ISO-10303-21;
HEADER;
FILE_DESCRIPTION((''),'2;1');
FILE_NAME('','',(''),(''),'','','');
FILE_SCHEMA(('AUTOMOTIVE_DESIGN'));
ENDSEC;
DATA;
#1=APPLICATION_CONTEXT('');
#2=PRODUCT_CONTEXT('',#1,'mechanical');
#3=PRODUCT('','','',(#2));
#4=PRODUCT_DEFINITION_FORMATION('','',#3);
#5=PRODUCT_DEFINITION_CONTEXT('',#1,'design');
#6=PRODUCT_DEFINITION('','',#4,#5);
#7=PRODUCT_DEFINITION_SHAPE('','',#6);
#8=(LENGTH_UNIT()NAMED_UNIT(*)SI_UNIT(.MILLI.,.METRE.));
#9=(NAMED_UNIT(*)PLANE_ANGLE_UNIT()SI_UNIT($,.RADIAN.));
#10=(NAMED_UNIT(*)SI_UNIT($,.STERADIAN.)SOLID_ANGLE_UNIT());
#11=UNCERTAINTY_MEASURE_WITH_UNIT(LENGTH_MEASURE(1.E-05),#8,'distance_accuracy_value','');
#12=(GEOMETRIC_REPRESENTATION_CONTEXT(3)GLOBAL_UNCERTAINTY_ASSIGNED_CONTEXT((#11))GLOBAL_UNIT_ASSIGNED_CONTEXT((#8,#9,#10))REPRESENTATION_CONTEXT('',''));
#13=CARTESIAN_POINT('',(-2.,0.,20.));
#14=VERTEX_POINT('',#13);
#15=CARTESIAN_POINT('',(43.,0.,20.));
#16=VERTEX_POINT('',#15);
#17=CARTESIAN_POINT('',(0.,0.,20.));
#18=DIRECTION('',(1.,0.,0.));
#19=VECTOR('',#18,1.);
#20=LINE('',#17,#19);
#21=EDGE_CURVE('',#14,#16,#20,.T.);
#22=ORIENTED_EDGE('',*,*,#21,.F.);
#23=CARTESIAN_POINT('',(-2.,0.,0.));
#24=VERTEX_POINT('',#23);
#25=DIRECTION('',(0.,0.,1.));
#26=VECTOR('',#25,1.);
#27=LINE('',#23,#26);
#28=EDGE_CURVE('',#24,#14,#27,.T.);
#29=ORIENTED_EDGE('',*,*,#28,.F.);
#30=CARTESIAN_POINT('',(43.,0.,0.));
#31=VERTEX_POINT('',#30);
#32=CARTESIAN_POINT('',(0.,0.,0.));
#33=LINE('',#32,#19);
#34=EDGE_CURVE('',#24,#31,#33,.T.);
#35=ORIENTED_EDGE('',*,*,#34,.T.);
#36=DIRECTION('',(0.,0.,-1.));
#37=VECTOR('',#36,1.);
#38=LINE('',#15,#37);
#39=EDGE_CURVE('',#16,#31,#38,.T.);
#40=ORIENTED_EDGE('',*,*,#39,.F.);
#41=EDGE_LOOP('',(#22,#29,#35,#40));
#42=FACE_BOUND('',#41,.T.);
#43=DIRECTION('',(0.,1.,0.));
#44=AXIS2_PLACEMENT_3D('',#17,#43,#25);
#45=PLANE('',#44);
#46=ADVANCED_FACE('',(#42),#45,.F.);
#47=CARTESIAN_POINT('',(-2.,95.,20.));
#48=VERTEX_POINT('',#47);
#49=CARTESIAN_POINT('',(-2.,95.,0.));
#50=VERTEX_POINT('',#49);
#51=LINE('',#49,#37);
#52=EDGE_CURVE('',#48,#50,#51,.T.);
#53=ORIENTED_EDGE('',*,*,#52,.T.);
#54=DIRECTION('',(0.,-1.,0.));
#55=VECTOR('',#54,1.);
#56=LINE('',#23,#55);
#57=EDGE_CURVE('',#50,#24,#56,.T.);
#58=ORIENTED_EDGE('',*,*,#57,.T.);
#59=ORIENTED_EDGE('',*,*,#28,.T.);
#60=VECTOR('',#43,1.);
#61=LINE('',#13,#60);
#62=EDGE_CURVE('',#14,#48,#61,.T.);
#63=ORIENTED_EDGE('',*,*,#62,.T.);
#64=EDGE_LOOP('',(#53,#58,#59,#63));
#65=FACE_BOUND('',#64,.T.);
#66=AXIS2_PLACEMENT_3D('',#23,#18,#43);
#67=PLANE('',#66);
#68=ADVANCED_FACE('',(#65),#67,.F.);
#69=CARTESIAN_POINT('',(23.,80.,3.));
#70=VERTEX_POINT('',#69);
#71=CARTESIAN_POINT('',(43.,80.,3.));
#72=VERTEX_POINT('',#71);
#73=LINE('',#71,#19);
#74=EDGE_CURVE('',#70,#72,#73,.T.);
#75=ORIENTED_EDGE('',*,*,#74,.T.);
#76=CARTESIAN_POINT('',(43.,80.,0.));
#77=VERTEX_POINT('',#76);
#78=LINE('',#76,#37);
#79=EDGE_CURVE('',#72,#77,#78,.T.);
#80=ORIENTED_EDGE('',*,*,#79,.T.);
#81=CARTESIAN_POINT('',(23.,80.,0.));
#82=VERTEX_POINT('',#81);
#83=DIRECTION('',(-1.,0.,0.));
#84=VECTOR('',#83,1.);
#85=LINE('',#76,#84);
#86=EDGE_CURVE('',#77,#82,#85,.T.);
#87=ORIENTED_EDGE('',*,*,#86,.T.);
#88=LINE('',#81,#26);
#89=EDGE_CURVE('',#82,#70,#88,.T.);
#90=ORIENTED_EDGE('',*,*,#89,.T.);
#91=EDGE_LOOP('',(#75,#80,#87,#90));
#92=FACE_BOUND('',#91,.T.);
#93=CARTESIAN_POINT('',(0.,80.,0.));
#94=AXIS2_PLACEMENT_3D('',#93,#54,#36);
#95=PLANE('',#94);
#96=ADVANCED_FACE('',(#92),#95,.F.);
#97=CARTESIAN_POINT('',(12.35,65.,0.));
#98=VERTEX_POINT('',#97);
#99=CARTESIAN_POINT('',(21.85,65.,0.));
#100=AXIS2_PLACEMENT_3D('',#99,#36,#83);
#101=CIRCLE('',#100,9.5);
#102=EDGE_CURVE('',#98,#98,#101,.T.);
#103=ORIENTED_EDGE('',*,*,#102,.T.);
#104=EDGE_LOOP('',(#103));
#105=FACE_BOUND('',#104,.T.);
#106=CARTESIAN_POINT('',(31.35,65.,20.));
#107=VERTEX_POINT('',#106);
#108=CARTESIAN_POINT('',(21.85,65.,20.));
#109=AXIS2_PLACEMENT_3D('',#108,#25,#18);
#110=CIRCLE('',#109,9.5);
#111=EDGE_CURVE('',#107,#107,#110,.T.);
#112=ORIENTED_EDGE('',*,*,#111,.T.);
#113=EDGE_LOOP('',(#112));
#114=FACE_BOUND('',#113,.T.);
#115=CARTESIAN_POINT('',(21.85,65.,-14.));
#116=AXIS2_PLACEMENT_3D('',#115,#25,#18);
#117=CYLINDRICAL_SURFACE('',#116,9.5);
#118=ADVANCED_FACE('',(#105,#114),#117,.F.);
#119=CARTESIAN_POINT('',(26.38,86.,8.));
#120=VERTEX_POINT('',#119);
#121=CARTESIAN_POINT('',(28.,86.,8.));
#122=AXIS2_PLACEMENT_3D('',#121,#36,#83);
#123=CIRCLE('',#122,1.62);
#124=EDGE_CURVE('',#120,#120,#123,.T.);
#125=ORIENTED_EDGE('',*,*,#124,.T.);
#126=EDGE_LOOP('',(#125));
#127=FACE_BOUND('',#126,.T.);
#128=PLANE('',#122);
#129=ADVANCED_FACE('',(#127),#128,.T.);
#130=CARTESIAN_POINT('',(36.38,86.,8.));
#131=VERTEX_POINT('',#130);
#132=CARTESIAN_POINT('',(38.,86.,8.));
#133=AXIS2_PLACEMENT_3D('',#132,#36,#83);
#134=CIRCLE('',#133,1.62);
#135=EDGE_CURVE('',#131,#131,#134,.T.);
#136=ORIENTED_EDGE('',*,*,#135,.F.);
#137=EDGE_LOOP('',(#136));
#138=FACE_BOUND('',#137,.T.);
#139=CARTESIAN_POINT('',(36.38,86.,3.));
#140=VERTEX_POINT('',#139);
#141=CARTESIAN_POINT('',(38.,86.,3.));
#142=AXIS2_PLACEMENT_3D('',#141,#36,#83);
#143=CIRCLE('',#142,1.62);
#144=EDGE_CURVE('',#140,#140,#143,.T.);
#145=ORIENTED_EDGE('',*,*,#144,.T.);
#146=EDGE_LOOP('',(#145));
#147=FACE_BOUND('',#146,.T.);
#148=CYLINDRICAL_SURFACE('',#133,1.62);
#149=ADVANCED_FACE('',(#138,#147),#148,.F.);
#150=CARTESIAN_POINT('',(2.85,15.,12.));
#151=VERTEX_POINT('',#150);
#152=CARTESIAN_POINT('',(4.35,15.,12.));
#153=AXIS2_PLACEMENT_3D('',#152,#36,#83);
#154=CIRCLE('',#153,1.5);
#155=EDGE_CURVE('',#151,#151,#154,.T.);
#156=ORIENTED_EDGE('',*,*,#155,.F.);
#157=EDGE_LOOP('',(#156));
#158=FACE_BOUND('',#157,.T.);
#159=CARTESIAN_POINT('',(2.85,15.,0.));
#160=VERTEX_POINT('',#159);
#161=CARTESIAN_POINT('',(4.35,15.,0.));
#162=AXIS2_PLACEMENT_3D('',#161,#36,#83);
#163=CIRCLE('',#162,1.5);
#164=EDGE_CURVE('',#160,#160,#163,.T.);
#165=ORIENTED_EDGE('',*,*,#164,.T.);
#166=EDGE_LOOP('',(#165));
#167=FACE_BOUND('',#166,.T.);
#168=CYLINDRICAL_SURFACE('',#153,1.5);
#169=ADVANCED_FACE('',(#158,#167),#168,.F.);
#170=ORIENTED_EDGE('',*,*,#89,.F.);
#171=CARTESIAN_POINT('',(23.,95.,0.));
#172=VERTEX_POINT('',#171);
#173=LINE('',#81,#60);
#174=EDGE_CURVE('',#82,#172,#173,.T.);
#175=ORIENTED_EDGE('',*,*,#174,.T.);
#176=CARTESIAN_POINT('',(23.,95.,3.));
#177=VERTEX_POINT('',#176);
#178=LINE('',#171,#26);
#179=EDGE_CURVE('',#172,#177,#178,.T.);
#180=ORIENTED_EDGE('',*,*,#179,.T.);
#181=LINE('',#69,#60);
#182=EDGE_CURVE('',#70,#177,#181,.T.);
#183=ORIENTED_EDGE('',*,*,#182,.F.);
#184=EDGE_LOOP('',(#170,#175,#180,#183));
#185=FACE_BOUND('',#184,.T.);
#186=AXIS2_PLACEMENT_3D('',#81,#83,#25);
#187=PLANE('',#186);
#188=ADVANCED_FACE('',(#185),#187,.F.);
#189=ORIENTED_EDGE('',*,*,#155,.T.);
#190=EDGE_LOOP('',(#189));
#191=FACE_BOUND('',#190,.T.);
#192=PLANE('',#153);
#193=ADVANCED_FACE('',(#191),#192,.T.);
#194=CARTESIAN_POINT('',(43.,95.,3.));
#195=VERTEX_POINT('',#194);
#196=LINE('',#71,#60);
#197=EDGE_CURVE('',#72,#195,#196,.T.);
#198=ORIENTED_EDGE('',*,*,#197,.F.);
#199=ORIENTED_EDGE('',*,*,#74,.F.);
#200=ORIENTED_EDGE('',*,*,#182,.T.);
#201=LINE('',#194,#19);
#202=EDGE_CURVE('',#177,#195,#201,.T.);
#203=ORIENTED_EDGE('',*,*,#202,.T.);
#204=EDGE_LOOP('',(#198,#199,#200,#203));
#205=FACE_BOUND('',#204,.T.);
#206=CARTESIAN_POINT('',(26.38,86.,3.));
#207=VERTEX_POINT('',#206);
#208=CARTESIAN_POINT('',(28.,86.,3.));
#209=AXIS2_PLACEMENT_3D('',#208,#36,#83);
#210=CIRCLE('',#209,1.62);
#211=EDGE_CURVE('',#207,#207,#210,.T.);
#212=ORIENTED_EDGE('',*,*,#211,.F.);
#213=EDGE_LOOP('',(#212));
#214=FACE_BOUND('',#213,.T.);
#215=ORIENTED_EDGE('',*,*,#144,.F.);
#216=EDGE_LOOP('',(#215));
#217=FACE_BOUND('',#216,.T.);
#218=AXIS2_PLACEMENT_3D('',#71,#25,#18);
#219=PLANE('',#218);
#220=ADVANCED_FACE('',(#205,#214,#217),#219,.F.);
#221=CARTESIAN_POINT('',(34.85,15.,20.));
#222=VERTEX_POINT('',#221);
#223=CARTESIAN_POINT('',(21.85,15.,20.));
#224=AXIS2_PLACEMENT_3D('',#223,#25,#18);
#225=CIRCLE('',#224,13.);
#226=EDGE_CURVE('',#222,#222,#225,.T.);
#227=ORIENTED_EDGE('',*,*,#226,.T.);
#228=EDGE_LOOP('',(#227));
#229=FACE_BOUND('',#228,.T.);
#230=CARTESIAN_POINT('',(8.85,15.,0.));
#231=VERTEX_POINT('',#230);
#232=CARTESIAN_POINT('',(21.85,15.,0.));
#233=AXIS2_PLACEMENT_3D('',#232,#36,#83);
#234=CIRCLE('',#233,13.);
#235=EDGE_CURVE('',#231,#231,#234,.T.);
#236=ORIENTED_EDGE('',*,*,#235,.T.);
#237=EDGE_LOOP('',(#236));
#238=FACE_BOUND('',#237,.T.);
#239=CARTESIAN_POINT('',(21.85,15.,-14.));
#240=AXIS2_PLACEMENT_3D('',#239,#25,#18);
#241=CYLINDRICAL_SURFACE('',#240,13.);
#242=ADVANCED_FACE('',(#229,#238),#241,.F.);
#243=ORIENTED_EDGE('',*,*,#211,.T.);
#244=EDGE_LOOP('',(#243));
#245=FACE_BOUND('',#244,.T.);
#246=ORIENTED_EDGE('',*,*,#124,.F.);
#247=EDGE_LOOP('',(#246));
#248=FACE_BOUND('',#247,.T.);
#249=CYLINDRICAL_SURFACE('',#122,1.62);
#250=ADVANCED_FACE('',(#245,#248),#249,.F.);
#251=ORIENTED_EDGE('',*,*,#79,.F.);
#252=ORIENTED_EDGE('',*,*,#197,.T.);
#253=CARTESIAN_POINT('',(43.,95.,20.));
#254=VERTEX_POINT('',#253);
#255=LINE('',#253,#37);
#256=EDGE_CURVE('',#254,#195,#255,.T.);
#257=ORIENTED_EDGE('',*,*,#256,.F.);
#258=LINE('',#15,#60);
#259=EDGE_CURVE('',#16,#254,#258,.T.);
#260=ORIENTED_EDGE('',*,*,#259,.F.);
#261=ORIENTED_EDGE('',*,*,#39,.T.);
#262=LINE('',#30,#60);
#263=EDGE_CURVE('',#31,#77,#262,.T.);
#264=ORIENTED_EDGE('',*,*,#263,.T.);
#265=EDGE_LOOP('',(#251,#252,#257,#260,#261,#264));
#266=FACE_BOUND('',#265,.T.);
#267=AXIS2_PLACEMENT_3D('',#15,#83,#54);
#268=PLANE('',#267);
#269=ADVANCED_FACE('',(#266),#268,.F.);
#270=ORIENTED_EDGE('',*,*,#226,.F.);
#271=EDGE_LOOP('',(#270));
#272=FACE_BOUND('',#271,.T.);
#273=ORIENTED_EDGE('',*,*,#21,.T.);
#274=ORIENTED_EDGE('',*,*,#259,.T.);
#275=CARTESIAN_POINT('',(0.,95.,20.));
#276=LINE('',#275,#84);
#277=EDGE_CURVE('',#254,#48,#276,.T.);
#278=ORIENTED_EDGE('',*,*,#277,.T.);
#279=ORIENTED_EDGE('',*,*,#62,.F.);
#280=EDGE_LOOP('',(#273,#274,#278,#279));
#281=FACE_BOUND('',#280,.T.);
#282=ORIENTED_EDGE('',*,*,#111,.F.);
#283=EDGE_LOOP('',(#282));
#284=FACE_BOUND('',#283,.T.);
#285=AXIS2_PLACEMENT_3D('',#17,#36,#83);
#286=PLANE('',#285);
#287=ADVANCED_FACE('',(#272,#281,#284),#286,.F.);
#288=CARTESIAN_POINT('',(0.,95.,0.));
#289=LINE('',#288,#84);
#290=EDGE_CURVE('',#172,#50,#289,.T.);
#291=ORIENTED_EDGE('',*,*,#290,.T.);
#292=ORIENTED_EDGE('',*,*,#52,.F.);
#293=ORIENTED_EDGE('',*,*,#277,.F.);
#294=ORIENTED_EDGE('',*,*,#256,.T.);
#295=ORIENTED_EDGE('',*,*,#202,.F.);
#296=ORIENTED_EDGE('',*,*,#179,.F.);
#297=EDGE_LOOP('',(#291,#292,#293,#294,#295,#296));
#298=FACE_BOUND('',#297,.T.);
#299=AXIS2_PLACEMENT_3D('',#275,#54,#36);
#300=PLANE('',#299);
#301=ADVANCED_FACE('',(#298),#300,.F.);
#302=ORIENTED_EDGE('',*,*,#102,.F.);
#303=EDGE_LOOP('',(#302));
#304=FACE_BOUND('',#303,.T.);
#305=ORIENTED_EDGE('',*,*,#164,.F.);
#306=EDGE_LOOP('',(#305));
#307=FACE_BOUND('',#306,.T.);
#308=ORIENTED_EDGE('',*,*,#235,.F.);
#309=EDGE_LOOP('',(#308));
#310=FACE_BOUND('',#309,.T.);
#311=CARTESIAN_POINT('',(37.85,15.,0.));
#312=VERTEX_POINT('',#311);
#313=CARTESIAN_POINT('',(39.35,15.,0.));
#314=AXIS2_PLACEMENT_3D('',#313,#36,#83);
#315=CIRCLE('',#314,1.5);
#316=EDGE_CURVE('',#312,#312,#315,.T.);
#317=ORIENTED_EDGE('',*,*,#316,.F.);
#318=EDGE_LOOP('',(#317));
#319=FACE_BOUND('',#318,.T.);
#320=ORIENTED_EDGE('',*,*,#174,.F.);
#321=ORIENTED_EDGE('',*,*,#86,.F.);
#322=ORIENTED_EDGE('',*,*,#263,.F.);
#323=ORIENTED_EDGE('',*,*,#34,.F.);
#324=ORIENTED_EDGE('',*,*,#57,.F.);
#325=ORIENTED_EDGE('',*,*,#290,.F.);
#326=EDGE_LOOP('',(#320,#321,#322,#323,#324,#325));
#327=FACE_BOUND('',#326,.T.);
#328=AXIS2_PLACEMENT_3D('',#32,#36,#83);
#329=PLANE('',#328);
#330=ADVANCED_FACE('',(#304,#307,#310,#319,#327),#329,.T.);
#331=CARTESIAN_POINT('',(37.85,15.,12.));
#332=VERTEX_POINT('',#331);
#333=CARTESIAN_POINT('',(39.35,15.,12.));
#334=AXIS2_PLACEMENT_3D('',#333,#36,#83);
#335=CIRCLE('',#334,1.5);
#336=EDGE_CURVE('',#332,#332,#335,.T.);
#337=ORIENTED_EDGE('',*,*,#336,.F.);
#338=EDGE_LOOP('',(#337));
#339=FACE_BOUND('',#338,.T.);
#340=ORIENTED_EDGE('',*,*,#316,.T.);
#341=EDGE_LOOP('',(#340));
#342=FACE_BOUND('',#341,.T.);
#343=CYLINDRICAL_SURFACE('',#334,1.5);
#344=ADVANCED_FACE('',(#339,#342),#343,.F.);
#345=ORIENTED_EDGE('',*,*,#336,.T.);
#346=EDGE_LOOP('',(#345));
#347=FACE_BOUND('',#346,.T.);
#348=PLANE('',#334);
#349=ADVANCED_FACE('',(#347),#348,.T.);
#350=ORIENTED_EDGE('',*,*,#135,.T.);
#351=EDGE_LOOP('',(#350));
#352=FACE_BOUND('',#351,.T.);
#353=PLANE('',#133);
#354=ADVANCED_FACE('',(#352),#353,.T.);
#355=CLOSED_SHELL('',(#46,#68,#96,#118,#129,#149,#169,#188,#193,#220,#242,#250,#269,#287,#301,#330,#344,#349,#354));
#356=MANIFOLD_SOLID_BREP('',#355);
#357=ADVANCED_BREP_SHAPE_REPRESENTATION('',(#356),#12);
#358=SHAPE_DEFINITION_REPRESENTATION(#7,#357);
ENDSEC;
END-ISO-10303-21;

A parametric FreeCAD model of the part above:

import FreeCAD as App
import Part
import Sketcher
Q = App.Units.Quantity


def add_polygon(sketch, points):
    """Adds a closed chain of lines whose ends are joined by coincident constraints."""
    first, n = sketch.GeometryCount, len(points)
    for a, b in zip(points, points[1:] + points[:1]):
        sketch.addGeometry(Part.LineSegment(App.Vector(*a, 0), App.Vector(*b, 0)), False)
    for i in range(n):
        sketch.addConstraint(Sketcher.Constraint("Coincident", first + i, 2, first + (i + 1) % n, 1))

doc = App.newDocument("Part")
params = doc.addObject("Spreadsheet::Sheet", "Params")
for row, (alias, value) in enumerate([
    ("sketch1_width", "43 mm"),
    ("sketch1_height", "95 mm"),
    ("pad1_length", "20 mm"),
    ("sketch2_diameter", "26 mm"),
    ("pocket1_length", "34 mm"),
    ("sketch3_diameter", "19 mm"),
    ("pocket2_length", "34 mm"),
    ("sketch4_width", "20 mm"),
    ("sketch4_height", "3 mm"),
    ("pocket3_length", "15 mm"),
    ("sketch5_diameter", "3.24 mm"),
    ("pocket4_length", "5 mm"),
    ("sketch6_diameter", "3.24 mm"),
    ("pocket5_length", "5 mm"),
    ("sketch7_diameter", "3 mm"),
    ("pocket6_length", "12 mm"),
    ("sketch8_width", "95 mm"),
    ("sketch8_height", "20 mm"),
    ("pad2_length", "2 mm"),
], start=1):
    params.set(f"A{row}", alias)
    params.set(f"B{row}", "=" + value)
    params.setAlias(f"B{row}", alias)

body = doc.addObject("PartDesign::Body", "Body")

# Sketch on XY plane
sketch1 = doc.addObject("Sketcher::SketchObject", "Sketch")
body.addObject(sketch1)
sketch1.AttachmentSupport = (doc.XY_Plane, [""])
sketch1.MapMode = "FlatFace"
add_polygon(sketch1, [(0, 95), (0, 0), (43, 0), (43, 95)])  # lines 0-3
sketch1.addConstraint([
    Sketcher.Constraint("Vertical", 0),
    Sketcher.Constraint("Horizontal", 1),
    Sketcher.Constraint("Vertical", 2),
    Sketcher.Constraint("Horizontal", 3),
    Sketcher.Constraint("Coincident", 0, 2, -1, 1),
    Sketcher.Constraint("DistanceX", 1, 1, 1, 2, Q("43 mm")),
    Sketcher.Constraint("DistanceY", 0, 2, 0, 1, Q("95 mm")),
])
sketch1.setExpression("Constraints[9]", "Params.sketch1_width")
sketch1.setExpression("Constraints[10]", "Params.sketch1_height")
pad1 = doc.addObject("PartDesign::Pad", "Pad")
body.addObject(pad1)
pad1.Profile = sketch1
pad1.setExpression("Length", "Params.pad1_length")

# Sketch on XY plane
sketch2 = doc.addObject("Sketcher::SketchObject", "Sketch001")
body.addObject(sketch2)
sketch2.AttachmentSupport = (doc.XY_Plane, [""])
sketch2.MapMode = "FlatFace"
sketch2.AttachmentOffset = App.Placement(App.Vector(0, 0, 20), App.Rotation())
sketch2.addGeometry(Part.Circle(App.Vector(22, 15, 0), App.Vector(0, 0, 1), 13), False)
sketch2.addConstraint([
    Sketcher.Constraint("Diameter", 0, Q("26 mm")),
    Sketcher.Constraint("DistanceY", -1, 1, 0, 3, Q("15 mm")),
    Sketcher.Constraint("DistanceX", -1, 1, 0, 3, Q("21.85 mm")),
])
sketch2.setExpression("Constraints[0]", "Params.sketch2_diameter")
pocket1 = doc.addObject("PartDesign::Pocket", "Pocket")
body.addObject(pocket1)
pocket1.Profile = sketch2
pocket1.setExpression("Length", "Params.pocket1_length")

# Sketch on XY plane
sketch3 = doc.addObject("Sketcher::SketchObject", "Sketch002")
body.addObject(sketch3)
sketch3.AttachmentSupport = (doc.XY_Plane, [""])
sketch3.MapMode = "FlatFace"
sketch3.AttachmentOffset = App.Placement(App.Vector(0, 0, 20), App.Rotation())
sketch3.addGeometry(Part.Circle(App.Vector(22, 65, 0), App.Vector(0, 0, 1), 10), False)
sketch3.addConstraint([
    Sketcher.Constraint("Diameter", 0, Q("19 mm")),
    Sketcher.Constraint("DistanceY", -1, 1, 0, 3, Q("65 mm")),
    Sketcher.Constraint("DistanceX", -1, 1, 0, 3, Q("21.85 mm")),
])
sketch3.setExpression("Constraints[0]", "Params.sketch3_diameter")
pocket2 = doc.addObject("PartDesign::Pocket", "Pocket001")
body.addObject(pocket2)
pocket2.Profile = sketch3
pocket2.setExpression("Length", "Params.pocket2_length")

# Sketch on XZ plane
sketch4 = doc.addObject("Sketcher::SketchObject", "Sketch003")
body.addObject(sketch4)
sketch4.AttachmentSupport = (doc.XZ_Plane, [""])
sketch4.MapMode = "FlatFace"
sketch4.AttachmentOffset = App.Placement(App.Vector(0, 0, -95), App.Rotation())
add_polygon(sketch4, [(23, 0), (23, 3), (43, 3), (43, 0)])  # lines 0-3
sketch4.addConstraint([
    Sketcher.Constraint("Vertical", 0),
    Sketcher.Constraint("Horizontal", 1),
    Sketcher.Constraint("Vertical", 2),
    Sketcher.Constraint("Horizontal", 3),
    Sketcher.Constraint("PointOnObject", 2, 2, -1),
    Sketcher.Constraint("DistanceX", 1, 1, 1, 2, Q("20 mm")),
    Sketcher.Constraint("DistanceY", 0, 1, 0, 2, Q("3 mm")),
    Sketcher.Constraint("DistanceX", -1, 1, 0, 2, Q("23 mm")),
])
sketch4.setExpression("Constraints[9]", "Params.sketch4_width")
sketch4.setExpression("Constraints[10]", "Params.sketch4_height")
pocket3 = doc.addObject("PartDesign::Pocket", "Pocket002")
body.addObject(pocket3)
pocket3.Profile = sketch4
pocket3.setExpression("Length", "Params.pocket3_length")
pocket3.Reversed = True

# Sketch on XY plane
sketch5 = doc.addObject("Sketcher::SketchObject", "Sketch004")
body.addObject(sketch5)
sketch5.AttachmentSupport = (doc.XY_Plane, [""])
sketch5.MapMode = "FlatFace"
sketch5.AttachmentOffset = App.Placement(App.Vector(0, 0, 3), App.Rotation())
sketch5.addGeometry(Part.Circle(App.Vector(38, 86, 0), App.Vector(0, 0, 1), 1.6), False)
sketch5.addConstraint([
    Sketcher.Constraint("Diameter", 0, Q("3.24 mm")),
    Sketcher.Constraint("DistanceX", -1, 1, 0, 3, Q("38 mm")),
    Sketcher.Constraint("DistanceY", -1, 1, 0, 3, Q("86 mm")),
])
sketch5.setExpression("Constraints[0]", "Params.sketch5_diameter")
pocket4 = doc.addObject("PartDesign::Pocket", "Pocket003")
body.addObject(pocket4)
pocket4.Profile = sketch5
pocket4.setExpression("Length", "Params.pocket4_length")
pocket4.Reversed = True

# Sketch on XY plane
sketch6 = doc.addObject("Sketcher::SketchObject", "Sketch005")
body.addObject(sketch6)
sketch6.AttachmentSupport = (doc.XY_Plane, [""])
sketch6.MapMode = "FlatFace"
sketch6.AttachmentOffset = App.Placement(App.Vector(0, 0, 3), App.Rotation())
sketch6.addGeometry(Part.Circle(App.Vector(28, 86, 0), App.Vector(0, 0, 1), 1.6), False)
sketch6.addConstraint([
    Sketcher.Constraint("Diameter", 0, Q("3.24 mm")),
    Sketcher.Constraint("DistanceX", -1, 1, 0, 3, Q("28 mm")),
    Sketcher.Constraint("DistanceY", -1, 1, 0, 3, Q("86 mm")),
])
sketch6.setExpression("Constraints[0]", "Params.sketch6_diameter")
pocket5 = doc.addObject("PartDesign::Pocket", "Pocket004")
body.addObject(pocket5)
pocket5.Profile = sketch6
pocket5.setExpression("Length", "Params.pocket5_length")
pocket5.Reversed = True

# Sketch on XY plane
sketch7 = doc.addObject("Sketcher::SketchObject", "Sketch006")
body.addObject(sketch7)
sketch7.AttachmentSupport = (doc.XY_Plane, [""])
sketch7.MapMode = "FlatFace"
sketch7.addGeometry([
    Part.Circle(App.Vector(4.3, 15, 0), App.Vector(0, 0, 1), 1.5),
    Part.Circle(App.Vector(39.4, 15, 0), App.Vector(0, 0, 1), 1.5),
], False)
sketch7.addConstraint([
    Sketcher.Constraint("Equal", 0, 1),
    Sketcher.Constraint("Horizontal", 0, 3, 1, 3),
    Sketcher.Constraint("Diameter", 0, Q("3 mm")),
    Sketcher.Constraint("DistanceY", -1, 1, 0, 3, Q("15 mm")),
    Sketcher.Constraint("DistanceX", 0, 3, 1, 3, Q("35 mm")),
    Sketcher.Constraint("DistanceX", -1, 1, 0, 3, Q("4.35 mm")),
])
sketch7.setExpression("Constraints[2]", "Params.sketch7_diameter")
pocket6 = doc.addObject("PartDesign::Pocket", "Pocket005")
body.addObject(pocket6)
pocket6.Profile = sketch7
pocket6.setExpression("Length", "Params.pocket6_length")
pocket6.Reversed = True

# Sketch on YZ plane
sketch8 = doc.addObject("Sketcher::SketchObject", "Sketch007")
body.addObject(sketch8)
sketch8.AttachmentSupport = (doc.YZ_Plane, [""])
sketch8.MapMode = "FlatFace"
add_polygon(sketch8, [(95, 0), (0, 0), (0, 20), (95, 20)])  # lines 0-3
sketch8.addConstraint([
    Sketcher.Constraint("Horizontal", 0),
    Sketcher.Constraint("Vertical", 1),
    Sketcher.Constraint("Horizontal", 2),
    Sketcher.Constraint("Vertical", 3),
    Sketcher.Constraint("Coincident", 0, 2, -1, 1),
    Sketcher.Constraint("DistanceX", 0, 2, 0, 1, Q("95 mm")),
    Sketcher.Constraint("DistanceY", 1, 1, 1, 2, Q("20 mm")),
])
sketch8.setExpression("Constraints[9]", "Params.sketch8_width")
sketch8.setExpression("Constraints[10]", "Params.sketch8_height")
pad2 = doc.addObject("PartDesign::Pad", "Pad001")
body.addObject(pad2)
pad2.Profile = sketch8
pad2.setExpression("Length", "Params.pad2_length")
pad2.Reversed = True

doc.recompute()
